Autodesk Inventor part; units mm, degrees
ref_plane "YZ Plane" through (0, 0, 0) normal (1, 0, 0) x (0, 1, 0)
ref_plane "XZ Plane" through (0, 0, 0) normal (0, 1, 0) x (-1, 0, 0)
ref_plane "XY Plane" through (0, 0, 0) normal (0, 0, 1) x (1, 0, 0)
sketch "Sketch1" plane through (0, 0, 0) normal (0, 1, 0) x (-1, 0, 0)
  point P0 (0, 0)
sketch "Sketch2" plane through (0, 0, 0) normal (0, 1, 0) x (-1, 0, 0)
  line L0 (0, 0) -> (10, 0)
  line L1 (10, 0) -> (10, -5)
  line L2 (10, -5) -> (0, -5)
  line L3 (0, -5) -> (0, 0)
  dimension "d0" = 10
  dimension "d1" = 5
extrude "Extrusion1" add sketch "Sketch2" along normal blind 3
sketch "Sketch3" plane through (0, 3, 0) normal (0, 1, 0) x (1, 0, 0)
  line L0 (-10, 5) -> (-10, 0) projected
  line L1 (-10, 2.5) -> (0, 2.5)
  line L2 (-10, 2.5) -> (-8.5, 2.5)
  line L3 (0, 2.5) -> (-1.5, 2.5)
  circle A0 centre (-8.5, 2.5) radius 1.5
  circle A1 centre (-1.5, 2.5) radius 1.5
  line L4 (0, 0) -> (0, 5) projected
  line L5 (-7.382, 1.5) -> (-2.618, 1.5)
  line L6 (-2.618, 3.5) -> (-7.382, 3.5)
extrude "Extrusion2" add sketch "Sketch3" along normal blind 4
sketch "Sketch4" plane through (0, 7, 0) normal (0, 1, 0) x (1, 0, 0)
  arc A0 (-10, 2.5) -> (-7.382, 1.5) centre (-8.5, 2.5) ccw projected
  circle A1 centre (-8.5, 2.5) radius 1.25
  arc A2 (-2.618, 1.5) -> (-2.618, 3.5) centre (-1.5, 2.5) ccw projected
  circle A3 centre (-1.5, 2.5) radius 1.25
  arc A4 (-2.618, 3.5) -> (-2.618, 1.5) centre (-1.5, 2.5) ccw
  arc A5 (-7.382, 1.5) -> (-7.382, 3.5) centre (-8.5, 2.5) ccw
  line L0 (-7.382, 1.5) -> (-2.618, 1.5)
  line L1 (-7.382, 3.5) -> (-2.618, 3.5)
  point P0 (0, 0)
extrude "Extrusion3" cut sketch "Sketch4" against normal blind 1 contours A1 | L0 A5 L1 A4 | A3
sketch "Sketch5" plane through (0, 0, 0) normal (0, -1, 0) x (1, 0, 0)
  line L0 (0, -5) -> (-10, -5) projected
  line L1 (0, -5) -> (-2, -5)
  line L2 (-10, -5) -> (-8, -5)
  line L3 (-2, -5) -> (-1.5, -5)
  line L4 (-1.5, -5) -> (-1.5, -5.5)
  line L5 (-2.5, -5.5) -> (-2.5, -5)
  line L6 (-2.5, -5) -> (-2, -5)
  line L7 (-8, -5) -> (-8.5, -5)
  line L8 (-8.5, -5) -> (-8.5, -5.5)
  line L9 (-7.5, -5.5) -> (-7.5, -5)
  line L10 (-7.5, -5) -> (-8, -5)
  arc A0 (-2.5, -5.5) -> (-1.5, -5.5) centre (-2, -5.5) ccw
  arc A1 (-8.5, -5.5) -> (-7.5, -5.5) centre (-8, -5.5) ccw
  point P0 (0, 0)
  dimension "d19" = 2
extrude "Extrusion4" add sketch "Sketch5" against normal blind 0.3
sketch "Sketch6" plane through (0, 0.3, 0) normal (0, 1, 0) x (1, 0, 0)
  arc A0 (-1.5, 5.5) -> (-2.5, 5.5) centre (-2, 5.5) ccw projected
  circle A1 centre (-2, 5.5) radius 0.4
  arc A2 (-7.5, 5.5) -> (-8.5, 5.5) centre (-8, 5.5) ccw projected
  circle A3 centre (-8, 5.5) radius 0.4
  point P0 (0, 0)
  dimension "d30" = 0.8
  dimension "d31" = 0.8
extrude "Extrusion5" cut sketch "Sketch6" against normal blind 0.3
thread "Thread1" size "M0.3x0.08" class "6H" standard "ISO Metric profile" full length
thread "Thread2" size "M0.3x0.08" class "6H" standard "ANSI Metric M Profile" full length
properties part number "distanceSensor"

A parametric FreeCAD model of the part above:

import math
import FreeCAD as App
import Part
import Sketcher
from FreeCAD import Vector


def add_polygon(sketch, points):
    """Adds a closed chain of lines whose ends are joined by coincident constraints."""
    first, n = sketch.GeometryCount, len(points)
    for a, b in zip(points, points[1:] + points[:1]):
        sketch.addGeometry(Part.LineSegment(App.Vector(*a, 0), App.Vector(*b, 0)), False)
    for i in range(n):
        sketch.addConstraint(Sketcher.Constraint("Coincident", first + i, 2, first + (i + 1) % n, 1))

doc = App.newDocument("Part")
params = doc.addObject("Spreadsheet::Sheet", "Params")
for row, (alias, value) in enumerate([
    ("sketch1_width", "10 mm"),
    ("sketch1_height", "5 mm"),
    ("pad1_length", "3 mm"),
    ("sketch2_radius", "1.5 mm"),
    ("sketch2_height", "1 mm"),
    ("pad2_length", "4 mm"),
    ("sketch3_diameter", "2.5 mm"),
    ("sketch3_radius", "1.5 mm"),
    ("pocket1_length", "1 mm"),
    ("sketch4_radius", "0.5 mm"),
    ("sketch4_height", "0.5 mm"),
    ("pad3_length", "0.3 mm"),
    ("sketch5_diameter", "0.8 mm"),
    ("pocket2_length", "0.3 mm"),
], start=1):
    params.set(f"A{row}", alias)
    params.set(f"B{row}", "=" + value)
    params.setAlias(f"B{row}", alias)

body = doc.addObject("PartDesign::Body", "Body")

# Sketch on XZ plane
sketch1 = body.newObject("Sketcher::SketchObject", "Sketch")
sketch1.AttachmentSupport = (doc.getObject("XZ_Plane"), [""])
sketch1.MapMode = "FlatFace"
add_polygon(sketch1, [(-10, 0), (0, 0), (0, -5), (-10, -5)])  # lines 0-3
sketch1.addConstraint([
    Sketcher.Constraint("Horizontal", 0),
    Sketcher.Constraint("Vertical", 1),
    Sketcher.Constraint("Horizontal", 2),
    Sketcher.Constraint("Vertical", 3),
    Sketcher.Constraint("Coincident", 0, 2, -1, 1),
    Sketcher.Constraint("DistanceX", 0, 1, 0, 2, 10.0),
    Sketcher.Constraint("DistanceY", 1, 2, 1, 1, 5.0),
])
sketch1.setExpression("Constraints[9]", "Params.sketch1_width")
sketch1.setExpression("Constraints[10]", "Params.sketch1_height")
pad1 = body.newObject("PartDesign::Pad", "Pad")
pad1.Profile = sketch1
pad1.setExpression("Length", "Params.pad1_length")
pad1.Reversed = True

# Sketch on XZ plane
sketch2 = body.newObject("Sketcher::SketchObject", "Sketch001")
sketch2.AttachmentSupport = (doc.getObject("XZ_Plane"), [""])
sketch2.MapMode = "FlatFace"
sketch2.AttachmentOffset = App.Placement(Vector(0, 0, -3), App.Rotation())
sketch2.addGeometry([
    Part.ArcOfCircle(Part.Circle(Vector(-8.5, -2.5, 0), Vector(0, 0, 1), 1.5), math.radians(42), math.radians(318)),
    Part.LineSegment(Vector(-7.4, -1.5, 0), Vector(-2.6, -1.5, 0)),
    Part.ArcOfCircle(Part.Circle(Vector(-1.5, -2.5, 0), Vector(0, 0, 1), 1.5), math.radians(-138), math.radians(138)),
    Part.LineSegment(Vector(-2.6, -3.5, 0), Vector(-7.4, -3.5, 0)),
], False)
sketch2.addConstraint([
    Sketcher.Constraint("Coincident", 0, 1, 1, 1),
    Sketcher.Constraint("Coincident", 1, 2, 2, 2),
    Sketcher.Constraint("Coincident", 2, 1, 3, 1),
    Sketcher.Constraint("Coincident", 3, 2, 0, 2),
    Sketcher.Constraint("Horizontal", 1),
    Sketcher.Constraint("Horizontal", 3),
    Sketcher.Constraint("Equal", 0, 2),
    Sketcher.Constraint("Horizontal", 0, 3, 2, 3),
    Sketcher.Constraint("Vertical", 1, 2, 2, 1),
    Sketcher.Constraint("Radius", 0, 1.5),
    Sketcher.Constraint("DistanceX", 0, 3, 2, 3, 7.0),
    Sketcher.Constraint("DistanceY", 0, 3, 0, 1, 1.0),
    Sketcher.Constraint("DistanceX", 0, 3, -1, 1, 8.5),
    Sketcher.Constraint("DistanceY", 0, 3, -1, 1, 2.5),
])
sketch2.setExpression("Constraints[9]", "Params.sketch2_radius")
sketch2.setExpression("Constraints[11]", "Params.sketch2_height")
pad2 = body.newObject("PartDesign::Pad", "Pad001")
pad2.Profile = sketch2
pad2.setExpression("Length", "Params.pad2_length")
pad2.Reversed = True

# Sketch on XZ plane
sketch3 = body.newObject("Sketcher::SketchObject", "Sketch002")
sketch3.AttachmentSupport = (doc.getObject("XZ_Plane"), [""])
sketch3.MapMode = "FlatFace"
sketch3.AttachmentOffset = App.Placement(Vector(0, 0, -7), App.Rotation())
sketch3.addGeometry([
    Part.Circle(Vector(-8.5, -2.5, 0), Vector(0, 0, 1), 1.2),  # 0
    Part.LineSegment(Vector(-7.4, -1.5, 0), Vector(-2.6, -1.5, 0)),  # 1
    Part.ArcOfCircle(Part.Circle(Vector(-1.5, -2.5, 0), Vector(0, 0, 1), 1.5), math.radians(138), math.radians(222)),  # 2
    Part.LineSegment(Vector(-2.6, -3.5, 0), Vector(-7.4, -3.5, 0)),  # 3
    Part.ArcOfCircle(Part.Circle(Vector(-8.5, -2.5, 0), Vector(0, 0, 1), 1.5), math.radians(-42), math.radians(42)),  # 4
    Part.Circle(Vector(-1.5, -2.5, 0), Vector(0, 0, 1), 1.2),  # 5
], False)
sketch3.addConstraint([
    Sketcher.Constraint("Coincident", 1, 2, 2, 1),
    Sketcher.Constraint("Coincident", 2, 2, 3, 1),
    Sketcher.Constraint("Coincident", 3, 2, 4, 1),
    Sketcher.Constraint("Coincident", 4, 2, 1, 1),
    Sketcher.Constraint("Horizontal", 1),
    Sketcher.Constraint("Horizontal", 3),
    Sketcher.Constraint("Coincident", 4, 3, 0, 3),
    Sketcher.Constraint("Coincident", 5, 3, 2, 3),
    Sketcher.Constraint("Equal", 2, 4),
    Sketcher.Constraint("Equal", 0, 5),
    Sketcher.Constraint("Horizontal", 0, 3, 2, 3),
    Sketcher.Constraint("Vertical", 1, 2, 2, 2),
    Sketcher.Constraint("Diameter", 0, 2.5),
    Sketcher.Constraint("Radius", 2, 1.5),
    Sketcher.Constraint("DistanceX", 0, 3, 2, 3, 7.0),
    Sketcher.Constraint("DistanceY", 2, 3, 1, 2, 1.0),
    Sketcher.Constraint("DistanceX", 0, 3, -1, 1, 8.5),
    Sketcher.Constraint("DistanceY", 0, 3, -1, 1, 2.5),
])
sketch3.setExpression("Constraints[12]", "Params.sketch3_diameter")
sketch3.setExpression("Constraints[13]", "Params.sketch3_radius")
pocket1 = body.newObject("PartDesign::Pocket", "Pocket")
pocket1.Profile = sketch3
pocket1.setExpression("Length", "Params.pocket1_length")
pocket1.Reversed = True

# Sketch on XZ plane
sketch4 = body.newObject("Sketcher::SketchObject", "Sketch003")
sketch4.AttachmentSupport = (doc.getObject("XZ_Plane"), [""])
sketch4.MapMode = "FlatFace"
sketch4.addGeometry([
    Part.LineSegment(Vector(-1.5, -5.5, 0), Vector(-1.5, -5, 0)),  # 0
    Part.LineSegment(Vector(-1.5, -5, 0), Vector(-2.5, -5, 0)),  # 1
    Part.LineSegment(Vector(-2.5, -5, 0), Vector(-2.5, -5.5, 0)),  # 2
    Part.ArcOfCircle(Part.Circle(Vector(-2, -5.5, 0), Vector(0, 0, 1), 0.5), math.radians(180), math.radians(360)),  # 3
    Part.LineSegment(Vector(-7.5, -5.5, 0), Vector(-7.5, -5, 0)),  # 4
    Part.LineSegment(Vector(-7.5, -5, 0), Vector(-8.5, -5, 0)),  # 5
    Part.LineSegment(Vector(-8.5, -5, 0), Vector(-8.5, -5.5, 0)),  # 6
    Part.ArcOfCircle(Part.Circle(Vector(-8, -5.5, 0), Vector(0, 0, 1), 0.5), math.radians(180), math.radians(360)),  # 7
], False)
sketch4.addConstraint([
    Sketcher.Constraint("Coincident", 0, 2, 1, 1),
    Sketcher.Constraint("Coincident", 1, 2, 2, 1),
    Sketcher.Constraint("Tangent", 2, 2, 3, 1),
    Sketcher.Constraint("Tangent", 3, 2, 0, 1),
    Sketcher.Constraint("Coincident", 4, 2, 5, 1),
    Sketcher.Constraint("Coincident", 5, 2, 6, 1),
    Sketcher.Constraint("Tangent", 6, 2, 7, 1),
    Sketcher.Constraint("Tangent", 7, 2, 4, 1),
    Sketcher.Constraint("Vertical", 0),
    Sketcher.Constraint("Horizontal", 1),
    Sketcher.Constraint("Vertical", 2),
    Sketcher.Constraint("Vertical", 4),
    Sketcher.Constraint("Horizontal", 5),
    Sketcher.Constraint("Vertical", 6),
    Sketcher.Constraint("Equal", 3, 7),
    Sketcher.Constraint("Horizontal", 3, 3, 7, 3),
    Sketcher.Constraint("Horizontal", 1, 2, 4, 2),
    Sketcher.Constraint("DistanceX", 3, 3, -1, 1, 2.0),
    Sketcher.Constraint("Radius", 3, 0.5),
    Sketcher.Constraint("DistanceY", 0, 1, 0, 2, 0.5),
    Sketcher.Constraint("DistanceX", 7, 3, -1, 1, 8.0),
    Sketcher.Constraint("DistanceY", 0, 2, -1, 1, 5.0),
])
sketch4.setExpression("Constraints[18]", "Params.sketch4_radius")
sketch4.setExpression("Constraints[19]", "Params.sketch4_height")
pad3 = body.newObject("PartDesign::Pad", "Pad002")
pad3.Profile = sketch4
pad3.setExpression("Length", "Params.pad3_length")
pad3.Reversed = True

# Sketch on XZ plane
sketch5 = body.newObject("Sketcher::SketchObject", "Sketch004")
sketch5.AttachmentSupport = (doc.getObject("XZ_Plane"), [""])
sketch5.MapMode = "FlatFace"
sketch5.AttachmentOffset = App.Placement(Vector(0, 0, -0.3), App.Rotation())
sketch5.addGeometry([
    Part.Circle(Vector(-2, -5.5, 0), Vector(0, 0, 1), 0.4),
    Part.Circle(Vector(-8, -5.5, 0), Vector(0, 0, 1), 0.4),
], False)
sketch5.addConstraint([
    Sketcher.Constraint("Equal", 0, 1),
    Sketcher.Constraint("Horizontal", 0, 3, 1, 3),
    Sketcher.Constraint("Diameter", 0, 0.8),
    Sketcher.Constraint("DistanceX", 0, 3, -1, 1, 2.0),
    Sketcher.Constraint("DistanceX", 1, 3, -1, 1, 8.0),
    Sketcher.Constraint("DistanceY", 0, 3, -1, 1, 5.5),
])
sketch5.setExpression("Constraints[2]", "Params.sketch5_diameter")
pocket2 = body.newObject("PartDesign::Pocket", "Pocket001")
pocket2.Profile = sketch5
pocket2.setExpression("Length", "Params.pocket2_length")
pocket2.Reversed = True

doc.recompute()
